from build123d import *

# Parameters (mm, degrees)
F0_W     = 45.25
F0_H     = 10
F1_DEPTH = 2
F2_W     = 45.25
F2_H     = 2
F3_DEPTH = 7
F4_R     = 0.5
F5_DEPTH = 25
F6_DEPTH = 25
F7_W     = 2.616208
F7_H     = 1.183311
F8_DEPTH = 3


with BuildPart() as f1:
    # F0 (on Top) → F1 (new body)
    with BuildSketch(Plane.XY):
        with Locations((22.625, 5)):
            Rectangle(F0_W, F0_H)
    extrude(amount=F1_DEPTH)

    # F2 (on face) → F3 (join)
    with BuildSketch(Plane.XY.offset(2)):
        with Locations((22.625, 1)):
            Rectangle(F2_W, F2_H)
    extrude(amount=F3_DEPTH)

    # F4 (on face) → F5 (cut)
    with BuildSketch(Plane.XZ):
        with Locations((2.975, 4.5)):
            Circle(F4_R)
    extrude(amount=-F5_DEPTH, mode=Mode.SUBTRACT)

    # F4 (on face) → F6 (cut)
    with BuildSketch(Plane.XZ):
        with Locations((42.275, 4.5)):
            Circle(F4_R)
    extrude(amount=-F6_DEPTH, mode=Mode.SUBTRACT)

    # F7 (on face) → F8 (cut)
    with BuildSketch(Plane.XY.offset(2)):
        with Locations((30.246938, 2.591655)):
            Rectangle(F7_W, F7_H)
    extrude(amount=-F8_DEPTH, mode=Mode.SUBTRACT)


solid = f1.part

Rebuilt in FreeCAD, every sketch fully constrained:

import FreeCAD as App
import Part
import Sketcher

doc = App.newDocument("Part")
body = doc.addObject("PartDesign::Body", "Body")

# Sketch on XY plane
sketch1 = doc.addObject("Sketcher::SketchObject", "Sketch")
body.addObject(sketch1)
sketch1.AttachmentSupport = (doc.XY_Plane, [""])
sketch1.MapMode = "FlatFace"
sketch1.addGeometry(Part.LineSegment(App.Vector(0, 10, 0), App.Vector(0, 0, 0)), False)
sketch1.addGeometry(Part.LineSegment(App.Vector(0, 0, 0), App.Vector(45.25, 0, 0)), False)
sketch1.addGeometry(Part.LineSegment(App.Vector(45.25, 0, 0), App.Vector(45.25, 10, 0)), False)
sketch1.addGeometry(Part.LineSegment(App.Vector(45.25, 10, 0), App.Vector(0, 10, 0)), False)
sketch1.addConstraint(Sketcher.Constraint("Coincident", 0, 2, 1, 1))
sketch1.addConstraint(Sketcher.Constraint("Coincident", 1, 2, 2, 1))
sketch1.addConstraint(Sketcher.Constraint("Coincident", 2, 2, 3, 1))
sketch1.addConstraint(Sketcher.Constraint("Coincident", 3, 2, 0, 1))
sketch1.addConstraint(Sketcher.Constraint("Vertical", 0))
sketch1.addConstraint(Sketcher.Constraint("Horizontal", 1))
sketch1.addConstraint(Sketcher.Constraint("Vertical", 2))
sketch1.addConstraint(Sketcher.Constraint("Horizontal", 3))
sketch1.addConstraint(Sketcher.Constraint("Coincident", 0, 2, -1, 1))
sketch1.addConstraint(Sketcher.Constraint("DistanceY", 0, 2, 0, 1, 10.0))
sketch1.addConstraint(Sketcher.Constraint("DistanceX", 1, 1, 1, 2, 45.25))
pad1 = doc.addObject("PartDesign::Pad", "Pad")
body.addObject(pad1)
pad1.Profile = sketch1
pad1.Length = 2

# Sketch on XY plane
sketch2 = doc.addObject("Sketcher::SketchObject", "Sketch001")
body.addObject(sketch2)
sketch2.AttachmentSupport = (doc.XY_Plane, [""])
sketch2.MapMode = "FlatFace"
sketch2.AttachmentOffset = App.Placement(App.Vector(0, 0, 2), App.Rotation())
sketch2.addGeometry(Part.LineSegment(App.Vector(0, 2, 0), App.Vector(0, 0, 0)), False)
sketch2.addGeometry(Part.LineSegment(App.Vector(0, 0, 0), App.Vector(45.25, 0, 0)), False)
sketch2.addGeometry(Part.LineSegment(App.Vector(45.25, 0, 0), App.Vector(45.25, 2, 0)), False)
sketch2.addGeometry(Part.LineSegment(App.Vector(45.25, 2, 0), App.Vector(0, 2, 0)), False)
sketch2.addConstraint(Sketcher.Constraint("Coincident", 0, 2, 1, 1))
sketch2.addConstraint(Sketcher.Constraint("Coincident", 1, 2, 2, 1))
sketch2.addConstraint(Sketcher.Constraint("Coincident", 2, 2, 3, 1))
sketch2.addConstraint(Sketcher.Constraint("Coincident", 3, 2, 0, 1))
sketch2.addConstraint(Sketcher.Constraint("Vertical", 0))
sketch2.addConstraint(Sketcher.Constraint("Horizontal", 1))
sketch2.addConstraint(Sketcher.Constraint("Vertical", 2))
sketch2.addConstraint(Sketcher.Constraint("Horizontal", 3))
sketch2.addConstraint(Sketcher.Constraint("Coincident", 0, 2, -1, 1))
sketch2.addConstraint(Sketcher.Constraint("DistanceY", 0, 2, 0, 1, 2.0))
sketch2.addConstraint(Sketcher.Constraint("DistanceX", 1, 1, 1, 2, 45.25))
pad2 = doc.addObject("PartDesign::Pad", "Pad001")
body.addObject(pad2)
pad2.Profile = sketch2
pad2.Length = 7

# Sketch on XZ plane
sketch3 = doc.addObject("Sketcher::SketchObject", "Sketch002")
body.addObject(sketch3)
sketch3.AttachmentSupport = (doc.XZ_Plane, [""])
sketch3.MapMode = "FlatFace"
sketch3.addGeometry(Part.Circle(App.Vector(2.975, 4.5, 0), App.Vector(0, 0, 1), 0.5), False)
sketch3.addConstraint(Sketcher.Constraint("Diameter", 0, 1.0))
sketch3.addConstraint(Sketcher.Constraint("DistanceY", -1, 1, 0, 3, 4.5))
sketch3.addConstraint(Sketcher.Constraint("DistanceX", -1, 1, 0, 3, 2.975))
pocket1 = doc.addObject("PartDesign::Pocket", "Pocket")
body.addObject(pocket1)
pocket1.Profile = sketch3
pocket1.Length = 25

# Sketch on XZ plane
sketch4 = doc.addObject("Sketcher::SketchObject", "Sketch003")
body.addObject(sketch4)
sketch4.AttachmentSupport = (doc.XZ_Plane, [""])
sketch4.MapMode = "FlatFace"
sketch4.addGeometry(Part.Circle(App.Vector(42.275, 4.5, 0), App.Vector(0, 0, 1), 0.5), False)
sketch4.addConstraint(Sketcher.Constraint("Diameter", 0, 1.0))
sketch4.addConstraint(Sketcher.Constraint("DistanceY", -1, 1, 0, 3, 4.5))
sketch4.addConstraint(Sketcher.Constraint("DistanceX", -1, 1, 0, 3, 42.275))
pocket2 = doc.addObject("PartDesign::Pocket", "Pocket001")
body.addObject(pocket2)
pocket2.Profile = sketch4
pocket2.Length = 25

# Sketch on XY plane
sketch5 = doc.addObject("Sketcher::SketchObject", "Sketch004")
body.addObject(sketch5)
sketch5.AttachmentSupport = (doc.XY_Plane, [""])
sketch5.MapMode = "FlatFace"
sketch5.AttachmentOffset = App.Placement(App.Vector(0, 0, 2), App.Rotation())
sketch5.addGeometry(Part.LineSegment(App.Vector(28.938834, 3.183311, 0), App.Vector(28.938834, 1.999999, 0)), False)
sketch5.addGeometry(Part.LineSegment(App.Vector(28.938834, 1.999999, 0), App.Vector(31.555042, 1.999999, 0)), False)
sketch5.addGeometry(Part.LineSegment(App.Vector(31.555042, 1.999999, 0), App.Vector(31.555042, 3.183311, 0)), False)
sketch5.addGeometry(Part.LineSegment(App.Vector(31.555042, 3.183311, 0), App.Vector(28.938834, 3.183311, 0)), False)
sketch5.addConstraint(Sketcher.Constraint("Coincident", 0, 2, 1, 1))
sketch5.addConstraint(Sketcher.Constraint("Coincident", 1, 2, 2, 1))
sketch5.addConstraint(Sketcher.Constraint("Coincident", 2, 2, 3, 1))
sketch5.addConstraint(Sketcher.Constraint("Coincident", 3, 2, 0, 1))
sketch5.addConstraint(Sketcher.Constraint("Vertical", 0))
sketch5.addConstraint(Sketcher.Constraint("Horizontal", 1))
sketch5.addConstraint(Sketcher.Constraint("Vertical", 2))
sketch5.addConstraint(Sketcher.Constraint("Horizontal", 3))
sketch5.addConstraint(Sketcher.Constraint("DistanceY", -1, 1, 0, 2, 1.999999))
sketch5.addConstraint(Sketcher.Constraint("DistanceX", 1, 1, 1, 2, 2.616208))
sketch5.addConstraint(Sketcher.Constraint("DistanceY", 0, 2, 0, 1, 1.183311))
sketch5.addConstraint(Sketcher.Constraint("DistanceX", -1, 1, 1, 2, 31.555042))
pocket3 = doc.addObject("PartDesign::Pocket", "Pocket002")
body.addObject(pocket3)
pocket3.Profile = sketch5
pocket3.Length = 3

doc.recompute()
